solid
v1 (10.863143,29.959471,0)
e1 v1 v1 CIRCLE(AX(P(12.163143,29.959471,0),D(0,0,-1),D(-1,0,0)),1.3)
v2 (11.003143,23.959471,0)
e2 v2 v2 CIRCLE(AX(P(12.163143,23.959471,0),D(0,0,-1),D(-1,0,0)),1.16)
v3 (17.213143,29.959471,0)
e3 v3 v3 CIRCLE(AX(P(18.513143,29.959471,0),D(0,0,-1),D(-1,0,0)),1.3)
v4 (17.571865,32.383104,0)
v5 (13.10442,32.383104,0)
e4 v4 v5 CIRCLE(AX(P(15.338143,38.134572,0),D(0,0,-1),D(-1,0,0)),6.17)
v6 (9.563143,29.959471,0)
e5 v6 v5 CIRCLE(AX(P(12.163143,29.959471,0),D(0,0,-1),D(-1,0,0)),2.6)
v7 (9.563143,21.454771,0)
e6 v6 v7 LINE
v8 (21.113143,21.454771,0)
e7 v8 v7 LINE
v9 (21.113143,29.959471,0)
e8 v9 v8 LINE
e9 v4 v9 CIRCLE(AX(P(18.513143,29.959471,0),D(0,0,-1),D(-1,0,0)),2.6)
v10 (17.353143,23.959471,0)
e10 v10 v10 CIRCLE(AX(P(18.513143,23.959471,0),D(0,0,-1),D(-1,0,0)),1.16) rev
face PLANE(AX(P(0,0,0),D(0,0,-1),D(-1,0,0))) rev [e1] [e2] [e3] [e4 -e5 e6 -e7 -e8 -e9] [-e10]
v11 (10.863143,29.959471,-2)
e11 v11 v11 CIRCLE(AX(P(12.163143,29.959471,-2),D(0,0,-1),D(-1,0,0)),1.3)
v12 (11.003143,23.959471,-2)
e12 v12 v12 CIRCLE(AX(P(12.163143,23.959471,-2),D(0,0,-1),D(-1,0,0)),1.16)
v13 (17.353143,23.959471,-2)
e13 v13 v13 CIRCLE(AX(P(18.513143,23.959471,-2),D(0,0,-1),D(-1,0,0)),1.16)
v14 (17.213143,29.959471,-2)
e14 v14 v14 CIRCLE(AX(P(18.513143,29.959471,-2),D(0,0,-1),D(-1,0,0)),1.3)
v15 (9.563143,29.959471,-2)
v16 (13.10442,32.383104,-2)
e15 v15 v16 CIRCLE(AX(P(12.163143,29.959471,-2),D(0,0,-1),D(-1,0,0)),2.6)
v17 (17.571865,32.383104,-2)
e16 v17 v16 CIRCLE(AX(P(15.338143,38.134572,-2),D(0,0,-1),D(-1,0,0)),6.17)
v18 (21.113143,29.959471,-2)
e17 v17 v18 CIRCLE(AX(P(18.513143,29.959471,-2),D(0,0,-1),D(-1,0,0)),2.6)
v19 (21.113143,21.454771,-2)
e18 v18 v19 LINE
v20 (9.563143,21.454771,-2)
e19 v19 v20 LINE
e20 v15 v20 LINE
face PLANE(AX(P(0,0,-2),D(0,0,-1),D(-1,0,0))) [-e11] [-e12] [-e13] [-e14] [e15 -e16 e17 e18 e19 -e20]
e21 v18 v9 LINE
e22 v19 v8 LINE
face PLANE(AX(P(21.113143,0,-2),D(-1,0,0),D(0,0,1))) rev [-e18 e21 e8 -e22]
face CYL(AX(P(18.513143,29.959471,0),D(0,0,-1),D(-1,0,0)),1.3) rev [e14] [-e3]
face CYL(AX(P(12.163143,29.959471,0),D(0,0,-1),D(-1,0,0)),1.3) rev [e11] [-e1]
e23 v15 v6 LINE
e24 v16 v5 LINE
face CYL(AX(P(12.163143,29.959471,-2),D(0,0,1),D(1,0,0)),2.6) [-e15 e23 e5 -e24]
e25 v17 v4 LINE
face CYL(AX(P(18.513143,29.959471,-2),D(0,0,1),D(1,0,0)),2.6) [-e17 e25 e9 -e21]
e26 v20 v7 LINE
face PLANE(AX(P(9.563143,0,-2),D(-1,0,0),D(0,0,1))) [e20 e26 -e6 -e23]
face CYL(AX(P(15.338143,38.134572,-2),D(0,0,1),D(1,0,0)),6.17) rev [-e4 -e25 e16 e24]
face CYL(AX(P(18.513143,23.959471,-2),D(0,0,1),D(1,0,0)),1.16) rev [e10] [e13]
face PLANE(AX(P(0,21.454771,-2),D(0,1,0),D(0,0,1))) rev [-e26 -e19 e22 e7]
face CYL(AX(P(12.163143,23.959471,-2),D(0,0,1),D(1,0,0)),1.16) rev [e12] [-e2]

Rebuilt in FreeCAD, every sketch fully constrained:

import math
import FreeCAD as App
import Part
import Sketcher
from FreeCAD import Vector


def edges_at(feature, points):
    """Names of the edges that pass closest to the given points."""
    edges = feature.Shape.Edges
    near = lambda p: min(range(len(edges)), key=lambda i: edges[i].distToShape(Part.Vertex(*p))[0])
    return sorted({f"Edge{near(p) + 1}" for p in points})

doc = App.newDocument("Part")
body = doc.addObject("PartDesign::Body", "Body")

# Sketch on XY plane
sketch1 = doc.addObject("Sketcher::SketchObject", "Sketch")
body.addObject(sketch1)
sketch1.AttachmentSupport = (doc.XY_Plane, [""])
sketch1.MapMode = "FlatFace"
sketch1.addGeometry([
    Part.LineSegment(Vector(0, 10, 0), Vector(0, 0, 0)),  # 0
    Part.LineSegment(Vector(0, 0, 0), Vector(37, 0, 0)),  # 1
    Part.LineSegment(Vector(37, 0, 0), Vector(37, 10, 0)),  # 2
    Part.LineSegment(Vector(37, 10, 0), Vector(30, 10, 0)),  # 3
    Part.LineSegment(Vector(30, 10, 0), Vector(25, 15, 0)),  # 4
    Part.LineSegment(Vector(25, 15, 0), Vector(25, 34, 0)),  # 5
    Part.LineSegment(Vector(25, 34, 0), Vector(12, 34, 0)),  # 6
    Part.LineSegment(Vector(12, 34, 0), Vector(12, 15, 0)),  # 7
    Part.LineSegment(Vector(12, 15, 0), Vector(8, 10, 0)),  # 8
    Part.LineSegment(Vector(8, 10, 0), Vector(0, 10, 0)),  # 9
], False)
sketch1.addConstraint([
    Sketcher.Constraint("Coincident", 0, 2, 1, 1),
    Sketcher.Constraint("Coincident", 1, 2, 2, 1),
    Sketcher.Constraint("Coincident", 2, 2, 3, 1),
    Sketcher.Constraint("Coincident", 3, 2, 4, 1),
    Sketcher.Constraint("Coincident", 4, 2, 5, 1),
    Sketcher.Constraint("Coincident", 5, 2, 6, 1),
    Sketcher.Constraint("Coincident", 6, 2, 7, 1),
    Sketcher.Constraint("Coincident", 7, 2, 8, 1),
    Sketcher.Constraint("Coincident", 8, 2, 9, 1),
    Sketcher.Constraint("Coincident", 9, 2, 0, 1),
    Sketcher.Constraint("Vertical", 0),
    Sketcher.Constraint("Horizontal", 1),
    Sketcher.Constraint("Vertical", 2),
    Sketcher.Constraint("Horizontal", 3),
    Sketcher.Constraint("Vertical", 5),
    Sketcher.Constraint("Horizontal", 6),
    Sketcher.Constraint("Vertical", 7),
    Sketcher.Constraint("Horizontal", 9),
    Sketcher.Constraint("Coincident", 0, 2, -1, 1),
    Sketcher.Constraint("Perpendicular", 4, 8),
    Sketcher.Constraint("Horizontal", 4, 2, 7, 2),
    Sketcher.Constraint("Horizontal", 3, 2, 8, 2),
    Sketcher.Constraint("Equal", 3, 9),
    Sketcher.Constraint("Equal", 4, 8),
    Sketcher.Constraint("DistanceY", 0, 2, 0, 1, 10.0),
    Sketcher.Constraint("DistanceX", 3, 2, 3, 1, 7.5),
    Sketcher.Constraint("DistanceX", 6, 2, 6, 1, 12.25),
    Sketcher.Constraint("DistanceY", -1, 1, 5, 2, 34.4),
    Sketcher.Constraint("Distance", 4, 7.07),
])
pad1 = doc.addObject("PartDesign::Pad", "Pad")
body.addObject(pad1)
pad1.Profile = sketch1
pad1.Length = 6.18

# Sketch on XZ plane
sketch2 = doc.addObject("Sketcher::SketchObject", "Sketch001")
body.addObject(sketch2)
sketch2.AttachmentSupport = (doc.XZ_Plane, [""])
sketch2.MapMode = "FlatFace"
sketch2.AttachmentOffset = App.Placement(Vector(0, 0, -10), App.Rotation())
sketch2.addGeometry([
    Part.Circle(Vector(3.8, 3.1, 0), Vector(0, 0, 1), 2.1),
    Part.Circle(Vector(33.5, 3.1, 0), Vector(0, 0, 1), 2.1),
], False)
sketch2.addConstraint([
    Sketcher.Constraint("Equal", 0, 1),
    Sketcher.Constraint("Horizontal", 0, 3, 1, 3),
    Sketcher.Constraint("Diameter", 0, 4.2),
    Sketcher.Constraint("DistanceX", -1, 1, 0, 3, 3.75),
    Sketcher.Constraint("DistanceY", -1, 1, 0, 3, 3.09),
    Sketcher.Constraint("DistanceX", -1, 1, 1, 3, 33.49849),
])
pocket1 = doc.addObject("PartDesign::Pocket", "Pocket")
body.addObject(pocket1)
pocket1.Profile = sketch2
pocket1.Type = "ThroughAll"
pocket1.Reversed = True
doc.recompute()

fillet = doc.addObject("PartDesign::Fillet", "Fillet")
body.addObject(fillet)
fillet.Base = (pocket1, edges_at(pocket1, [
    (0, 5, 0),
    (37.248, 5, 0),
    (12.499, 34.4, 3.09),
    (24.749, 34.4, 3.09),
    (0, 5, 6.18),
    (37.248, 5, 6.18),
]))
fillet.Radius = 2

# Sketch on XY plane
sketch3 = doc.addObject("Sketcher::SketchObject", "Sketch002")
body.addObject(sketch3)
sketch3.AttachmentSupport = (doc.XY_Plane, [""])
sketch3.MapMode = "FlatFace"
sketch3.addGeometry([
    Part.LineSegment(Vector(21.1, 30, 0), Vector(21.1, 21.5, 0)),  # 0
    Part.LineSegment(Vector(21.1, 21.5, 0), Vector(9.6, 21.5, 0)),  # 1
    Part.LineSegment(Vector(9.6, 21.5, 0), Vector(9.6, 30, 0)),  # 2
    Part.ArcOfCircle(Part.Circle(Vector(12.2, 30, 0), Vector(0, 0, 1), 2.6), math.radians(82), math.radians(180)),  # 3
    Part.ArcOfCircle(Part.Circle(Vector(12.2, 30, 0), Vector(0, 0, 1), 2.6), math.radians(68.78), math.radians(82.47)),  # 4
    Part.ArcOfCircle(Part.Circle(Vector(15.3, 38.1, 0), Vector(0, 0, 1), 6.2), math.radians(-111), math.radians(-69)),  # 5
    Part.ArcOfCircle(Part.Circle(Vector(18.5, 30, 0), Vector(0, 0, 1), 2.6), math.radians(0), math.radians(111)),  # 6
    Part.ArcOfCircle(Part.Circle(Vector(12.2, 24, 0), Vector(0, 0, 1), 1.2), math.radians(-73), math.radians(73)),  # 7
    Part.ArcOfCircle(Part.Circle(Vector(12.2, 24, 0), Vector(0, 0, 1), 1.2), math.radians(73), math.radians(180)),  # 8
    Part.ArcOfCircle(Part.Circle(Vector(12.2, 24, 0), Vector(0, 0, 1), 1.2), math.radians(-180), math.radians(-73)),  # 9
    Part.Circle(Vector(18.5, 24, 0), Vector(0, 0, 1), 1.2),  # 10
    Part.ArcOfCircle(Part.Circle(Vector(12.2, 30, 0), Vector(0, 0, 1), 1.2), math.radians(-73), math.radians(0)),  # 11
    Part.ArcOfCircle(Part.Circle(Vector(12.2, 30, 0), Vector(0, 0, 1), 1.2), math.radians(0), math.radians(73)),  # 12
    Part.ArcOfCircle(Part.Circle(Vector(12.2, 30, 0), Vector(0, 0, 1), 1.2), math.radians(73), math.radians(180)),  # 13
    Part.ArcOfCircle(Part.Circle(Vector(12.2, 30, 0), Vector(0, 0, 1), 1.2), math.radians(180), math.radians(287)),  # 14
    Part.Circle(Vector(18.5, 30, 0), Vector(0, 0, 1), 1.2),  # 15
], False)
sketch3.addConstraint([
    Sketcher.Constraint("Coincident", 0, 2, 1, 1),
    Sketcher.Constraint("Coincident", 1, 2, 2, 1),
    Sketcher.Constraint("Tangent", 2, 2, 3, 2),
    Sketcher.Constraint("Tangent", 3, 1, 4, 2),
    Sketcher.Constraint("Tangent", 4, 1, 5, 1),
    Sketcher.Constraint("Tangent", 5, 2, 6, 2),
    Sketcher.Constraint("Tangent", 6, 1, 0, 1),
    Sketcher.Constraint("Tangent", 7, 2, 8, 1),
    Sketcher.Constraint("Tangent", 8, 2, 9, 1),
    Sketcher.Constraint("Tangent", 9, 2, 7, 1),
    Sketcher.Constraint("Tangent", 11, 2, 12, 1),
    Sketcher.Constraint("Tangent", 12, 2, 13, 1),
    Sketcher.Constraint("Tangent", 13, 2, 14, 1),
    Sketcher.Constraint("Tangent", 14, 2, 11, 1),
    Sketcher.Constraint("Vertical", 0),
    Sketcher.Constraint("Horizontal", 1),
    Sketcher.Constraint("Vertical", 2),
    Sketcher.Constraint("Coincident", 11, 3, 3, 3),
    Sketcher.Constraint("Coincident", 15, 3, 6, 3),
    Sketcher.Constraint("Equal", 3, 4),
    Sketcher.Constraint("Equal", 4, 6),
    Sketcher.Constraint("Equal", 9, 10),
    Sketcher.Constraint("Equal", 11, 12),
    Sketcher.Constraint("Equal", 14, 15),
    Sketcher.Constraint("Horizontal", 4, 3, 6, 3),
    Sketcher.Constraint("Horizontal", 9, 3, 10, 3),
    Sketcher.Constraint("Horizontal", 10, 3, 8, 2),
    Sketcher.Constraint("Horizontal", 6, 1, 11, 2),
    Sketcher.Constraint("Horizontal", 11, 2, 13, 2),
    Sketcher.Constraint("Vertical", 4, 3, 7, 3),
    Sketcher.Constraint("Vertical", 6, 3, 10, 3),
    Sketcher.Constraint("Vertical", 7, 2, 9, 2),
    Sketcher.Constraint("Vertical", 9, 2, 12, 2),
    Sketcher.Constraint("Vertical", 12, 2, 14, 2),
    Sketcher.Constraint("Radius", 3, 2.6),
    Sketcher.Constraint("Diameter", 10, 2.32),
    Sketcher.Constraint("Diameter", 15, 2.31),
    Sketcher.Constraint("Radius", 5, 6.17),
    Sketcher.Constraint("DistanceY", 7, 3, 4, 3, 6.0),
    Sketcher.Constraint("DistanceX", 1, 2, 1, 1, 11.55),
    Sketcher.Constraint("DistanceY", 0, 2, 0, 1, 8.5047),
    Sketcher.Constraint("DistanceY", -1, 1, 3, 3, 29.959471),
    Sketcher.Constraint("DistanceX", -1, 1, 4, 1, 13.10442),
    Sketcher.Constraint("DistanceY", -1, 1, 7, 2, 25.069712),
    Sketcher.Constraint("DistanceX", 3, 1, 5, 2, 5.06792),
])
pad2 = doc.addObject("PartDesign::Pad", "Pad001")
body.addObject(pad2)
pad2.Profile = sketch3
pad2.Length = 2
pad2.Reversed = True

# Sketch on XY plane
sketch4 = doc.addObject("Sketcher::SketchObject", "Sketch003")
body.addObject(sketch4)
sketch4.AttachmentSupport = (doc.XY_Plane, [""])
sketch4.MapMode = "FlatFace"
sketch4.AttachmentOffset = App.Placement(Vector(0, 0, 6.18), App.Rotation())
sketch4.addGeometry([
    Part.LineSegment(Vector(-5, 38, 0), Vector(-5, -4, 0)),
    Part.LineSegment(Vector(-5, -4, 0), Vector(41, -4, 0)),
    Part.LineSegment(Vector(41, -4, 0), Vector(41, 38, 0)),
    Part.LineSegment(Vector(41, 38, 0), Vector(-5, 38, 0)),
], False)
sketch4.addConstraint([
    Sketcher.Constraint("Coincident", 0, 2, 1, 1),
    Sketcher.Constraint("Coincident", 1, 2, 2, 1),
    Sketcher.Constraint("Coincident", 2, 2, 3, 1),
    Sketcher.Constraint("Coincident", 3, 2, 0, 1),
    Sketcher.Constraint("Vertical", 0),
    Sketcher.Constraint("Horizontal", 1),
    Sketcher.Constraint("Vertical", 2),
    Sketcher.Constraint("Horizontal", 3),
    Sketcher.Constraint("DistanceY", 0, 2, -1, 1, 3.754602),
    Sketcher.Constraint("DistanceX", 1, 1, 1, 2, 46.232616),
    Sketcher.Constraint("DistanceY", 0, 2, 0, 1, 41.700006),
    Sketcher.Constraint("DistanceX", 0, 2, -1, 1, 4.98019),
])
pocket2 = doc.addObject("PartDesign::Pocket", "Pocket001")
body.addObject(pocket2)
pocket2.Profile = sketch4
pocket2.Length = 6.18

# Sketch on XY plane
sketch5 = doc.addObject("Sketcher::SketchObject", "Sketch004")
body.addObject(sketch5)
sketch5.AttachmentSupport = (doc.XY_Plane, [""])
sketch5.MapMode = "FlatFace"
sketch5.AttachmentOffset = App.Placement(Vector(0, 0, -2), App.Rotation())
sketch5.addGeometry([
    Part.Circle(Vector(18.5, 30, 0), Vector(0, 0, 1), 1.3),
    Part.Circle(Vector(12.2, 30, 0), Vector(0, 0, 1), 1.3),
], False)
sketch5.addConstraint([
    Sketcher.Constraint("Equal", 0, 1),
    Sketcher.Constraint("Horizontal", 0, 3, 1, 3),
    Sketcher.Constraint("Diameter", 0, 2.6),
    Sketcher.Constraint("DistanceX", 1, 3, 0, 3, 6.35),
    Sketcher.Constraint("DistanceY", -1, 1, 0, 3, 29.959471),
    Sketcher.Constraint("DistanceX", -1, 1, 0, 3, 18.513143),
])
pocket3 = doc.addObject("PartDesign::Pocket", "Pocket002")
body.addObject(pocket3)
pocket3.Profile = sketch5
pocket3.Type = "ThroughAll"
pocket3.Reversed = True

doc.recompute()
